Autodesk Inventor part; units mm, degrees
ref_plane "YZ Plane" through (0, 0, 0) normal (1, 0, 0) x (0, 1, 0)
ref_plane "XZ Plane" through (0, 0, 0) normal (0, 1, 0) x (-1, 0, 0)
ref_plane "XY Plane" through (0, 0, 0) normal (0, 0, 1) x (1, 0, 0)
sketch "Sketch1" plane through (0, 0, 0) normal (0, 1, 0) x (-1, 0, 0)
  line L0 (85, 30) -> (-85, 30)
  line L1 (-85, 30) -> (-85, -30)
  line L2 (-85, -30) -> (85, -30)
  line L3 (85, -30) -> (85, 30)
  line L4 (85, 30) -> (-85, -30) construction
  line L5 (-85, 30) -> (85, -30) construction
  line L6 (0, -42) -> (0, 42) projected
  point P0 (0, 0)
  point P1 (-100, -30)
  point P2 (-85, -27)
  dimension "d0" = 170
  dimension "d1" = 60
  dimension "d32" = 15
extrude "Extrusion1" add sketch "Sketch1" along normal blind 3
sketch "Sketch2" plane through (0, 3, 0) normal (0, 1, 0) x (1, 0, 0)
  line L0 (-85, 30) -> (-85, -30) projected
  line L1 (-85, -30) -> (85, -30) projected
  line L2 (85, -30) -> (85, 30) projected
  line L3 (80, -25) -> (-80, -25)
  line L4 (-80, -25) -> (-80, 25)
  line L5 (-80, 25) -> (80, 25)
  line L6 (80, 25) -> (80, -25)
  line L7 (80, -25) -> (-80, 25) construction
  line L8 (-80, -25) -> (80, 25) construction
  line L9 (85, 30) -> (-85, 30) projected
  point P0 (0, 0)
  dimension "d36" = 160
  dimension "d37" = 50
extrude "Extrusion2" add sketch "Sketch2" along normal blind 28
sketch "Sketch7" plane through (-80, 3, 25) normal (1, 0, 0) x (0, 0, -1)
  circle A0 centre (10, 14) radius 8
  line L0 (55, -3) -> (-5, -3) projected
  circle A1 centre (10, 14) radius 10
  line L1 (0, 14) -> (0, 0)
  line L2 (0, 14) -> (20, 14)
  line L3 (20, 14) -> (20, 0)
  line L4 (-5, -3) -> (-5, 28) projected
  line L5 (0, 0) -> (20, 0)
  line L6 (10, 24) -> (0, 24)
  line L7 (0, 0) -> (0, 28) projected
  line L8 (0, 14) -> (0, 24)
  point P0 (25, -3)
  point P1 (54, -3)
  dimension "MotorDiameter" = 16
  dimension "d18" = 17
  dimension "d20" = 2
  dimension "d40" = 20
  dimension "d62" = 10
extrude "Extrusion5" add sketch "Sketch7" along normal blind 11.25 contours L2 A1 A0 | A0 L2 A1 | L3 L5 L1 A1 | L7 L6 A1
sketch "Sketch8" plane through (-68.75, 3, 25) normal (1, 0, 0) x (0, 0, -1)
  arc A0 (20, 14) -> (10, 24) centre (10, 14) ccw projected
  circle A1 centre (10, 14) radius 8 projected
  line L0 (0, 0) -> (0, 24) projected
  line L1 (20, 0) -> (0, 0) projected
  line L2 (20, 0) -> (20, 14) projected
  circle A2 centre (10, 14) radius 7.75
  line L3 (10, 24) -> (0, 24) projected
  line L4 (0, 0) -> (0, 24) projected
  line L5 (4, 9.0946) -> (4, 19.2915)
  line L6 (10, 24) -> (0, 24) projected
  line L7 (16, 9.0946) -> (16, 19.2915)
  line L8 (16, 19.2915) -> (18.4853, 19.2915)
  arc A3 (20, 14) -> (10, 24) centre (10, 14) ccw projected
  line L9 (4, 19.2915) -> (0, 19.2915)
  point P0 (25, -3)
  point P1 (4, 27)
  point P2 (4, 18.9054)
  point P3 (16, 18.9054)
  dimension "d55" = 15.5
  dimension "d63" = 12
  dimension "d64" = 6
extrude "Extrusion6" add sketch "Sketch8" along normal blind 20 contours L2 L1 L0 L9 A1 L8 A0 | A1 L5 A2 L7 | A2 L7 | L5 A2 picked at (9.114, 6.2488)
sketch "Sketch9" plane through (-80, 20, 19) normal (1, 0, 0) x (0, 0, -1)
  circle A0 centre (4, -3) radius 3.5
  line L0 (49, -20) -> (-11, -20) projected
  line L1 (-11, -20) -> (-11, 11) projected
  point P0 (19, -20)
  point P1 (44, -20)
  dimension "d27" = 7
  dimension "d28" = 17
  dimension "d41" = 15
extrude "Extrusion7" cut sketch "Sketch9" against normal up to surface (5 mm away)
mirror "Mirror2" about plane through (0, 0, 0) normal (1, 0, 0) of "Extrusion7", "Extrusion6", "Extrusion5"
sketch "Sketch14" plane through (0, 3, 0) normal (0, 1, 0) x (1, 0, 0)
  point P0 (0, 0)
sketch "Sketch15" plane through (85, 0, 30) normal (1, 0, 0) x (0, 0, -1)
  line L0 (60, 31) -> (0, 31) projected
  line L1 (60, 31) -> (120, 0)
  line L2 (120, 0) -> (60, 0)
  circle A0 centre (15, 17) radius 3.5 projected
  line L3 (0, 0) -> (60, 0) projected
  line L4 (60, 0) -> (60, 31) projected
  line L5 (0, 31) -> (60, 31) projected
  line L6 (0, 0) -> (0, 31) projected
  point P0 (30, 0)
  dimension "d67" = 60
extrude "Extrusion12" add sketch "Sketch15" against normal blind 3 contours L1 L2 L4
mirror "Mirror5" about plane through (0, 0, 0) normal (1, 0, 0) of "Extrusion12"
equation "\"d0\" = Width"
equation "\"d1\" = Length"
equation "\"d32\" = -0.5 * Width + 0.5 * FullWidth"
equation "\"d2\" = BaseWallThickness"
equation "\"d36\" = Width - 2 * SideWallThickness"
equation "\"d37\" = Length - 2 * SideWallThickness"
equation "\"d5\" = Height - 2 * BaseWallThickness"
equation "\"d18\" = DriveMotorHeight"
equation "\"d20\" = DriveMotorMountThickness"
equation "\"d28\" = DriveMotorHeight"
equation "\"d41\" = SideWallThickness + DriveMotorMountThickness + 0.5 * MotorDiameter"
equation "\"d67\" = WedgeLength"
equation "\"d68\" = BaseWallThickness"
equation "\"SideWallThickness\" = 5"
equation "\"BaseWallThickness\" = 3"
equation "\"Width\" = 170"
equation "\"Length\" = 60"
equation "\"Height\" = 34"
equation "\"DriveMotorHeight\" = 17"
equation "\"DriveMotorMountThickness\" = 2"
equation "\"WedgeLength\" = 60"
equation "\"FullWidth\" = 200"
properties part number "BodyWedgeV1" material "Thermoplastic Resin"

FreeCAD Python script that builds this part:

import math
import FreeCAD as App
import Part
import Sketcher

V = App.Vector

doc = App.newDocument("Part")
body = doc.addObject("PartDesign::Body", "Body")

# Sketch on XZ plane
sketch1 = body.newObject("Sketcher::SketchObject", "Sketch")
sketch1.AttachmentSupport = (doc.getObject("XZ_Plane"), [""])
sketch1.MapMode = "FlatFace"
sketch1.addGeometry(Part.LineSegment(V(-85, -30, 0), V(-85, 30, 0)), False)
sketch1.addGeometry(Part.LineSegment(V(-85, 30, 0), V(85, 30, 0)), False)
sketch1.addGeometry(Part.LineSegment(V(85, 30, 0), V(85, -30, 0)), False)
sketch1.addGeometry(Part.LineSegment(V(85, -30, 0), V(-85, -30, 0)), False)
sketch1.addConstraint(Sketcher.Constraint("Coincident", 0, 2, 1, 1))
sketch1.addConstraint(Sketcher.Constraint("Coincident", 1, 2, 2, 1))
sketch1.addConstraint(Sketcher.Constraint("Coincident", 2, 2, 3, 1))
sketch1.addConstraint(Sketcher.Constraint("Coincident", 3, 2, 0, 1))
sketch1.addConstraint(Sketcher.Constraint("Vertical", 0))
sketch1.addConstraint(Sketcher.Constraint("Horizontal", 1))
sketch1.addConstraint(Sketcher.Constraint("Vertical", 2))
sketch1.addConstraint(Sketcher.Constraint("Horizontal", 3))
sketch1.addConstraint(Sketcher.Constraint("Symmetric", 0, 2, 2, 2, -1, 1))
sketch1.addConstraint(Sketcher.Constraint("DistanceX", 1, 1, 1, 2, 170.0))
sketch1.addConstraint(Sketcher.Constraint("DistanceY", 0, 1, 0, 2, 60.0))
pad1 = body.newObject("PartDesign::Pad", "Pad")
pad1.Profile = sketch1
pad1.Length = 3
pad1.Reversed = True

# Sketch on XZ plane
sketch2 = body.newObject("Sketcher::SketchObject", "Sketch001")
sketch2.AttachmentSupport = (doc.getObject("XZ_Plane"), [""])
sketch2.MapMode = "FlatFace"
sketch2.AttachmentOffset = App.Placement(V(0, 0, -3), App.Rotation())
sketch2.addGeometry(Part.LineSegment(V(85, -30, 0), V(-85, -30, 0)), False)
sketch2.addGeometry(Part.LineSegment(V(-85, -30, 0), V(-85, 30, 0)), False)
sketch2.addGeometry(Part.LineSegment(V(-85, 30, 0), V(85, 30, 0)), False)
sketch2.addGeometry(Part.LineSegment(V(85, 30, 0), V(85, -30, 0)), False)
sketch2.addGeometry(Part.LineSegment(V(80, -25, 0), V(80, 25, 0)), False)
sketch2.addGeometry(Part.LineSegment(V(80, 25, 0), V(-80, 25, 0)), False)
sketch2.addGeometry(Part.LineSegment(V(-80, 25, 0), V(-80, -25, 0)), False)
sketch2.addGeometry(Part.LineSegment(V(-80, -25, 0), V(80, -25, 0)), False)
sketch2.addConstraint(Sketcher.Constraint("Coincident", 0, 2, 1, 1))
sketch2.addConstraint(Sketcher.Constraint("Coincident", 1, 2, 2, 1))
sketch2.addConstraint(Sketcher.Constraint("Coincident", 2, 2, 3, 1))
sketch2.addConstraint(Sketcher.Constraint("Coincident", 3, 2, 0, 1))
sketch2.addConstraint(Sketcher.Constraint("Coincident", 4, 2, 5, 1))
sketch2.addConstraint(Sketcher.Constraint("Coincident", 5, 2, 6, 1))
sketch2.addConstraint(Sketcher.Constraint("Coincident", 6, 2, 7, 1))
sketch2.addConstraint(Sketcher.Constraint("Coincident", 7, 2, 4, 1))
sketch2.addConstraint(Sketcher.Constraint("Horizontal", 0))
sketch2.addConstraint(Sketcher.Constraint("Vertical", 1))
sketch2.addConstraint(Sketcher.Constraint("Horizontal", 2))
sketch2.addConstraint(Sketcher.Constraint("Vertical", 3))
sketch2.addConstraint(Sketcher.Constraint("Vertical", 4))
sketch2.addConstraint(Sketcher.Constraint("Horizontal", 5))
sketch2.addConstraint(Sketcher.Constraint("Vertical", 6))
sketch2.addConstraint(Sketcher.Constraint("Horizontal", 7))
sketch2.addConstraint(Sketcher.Constraint("Symmetric", 0, 2, 2, 2, -1, 1))
sketch2.addConstraint(Sketcher.Constraint("Symmetric", 4, 2, 6, 2, -1, 1))
sketch2.addConstraint(Sketcher.Constraint("DistanceX", 5, 2, 5, 1, 160.0))
sketch2.addConstraint(Sketcher.Constraint("DistanceY", 4, 1, 4, 2, 50.0))
sketch2.addConstraint(Sketcher.Constraint("DistanceX", 0, 2, 0, 1, 170.0))
sketch2.addConstraint(Sketcher.Constraint("DistanceY", 1, 1, 1, 2, 60.0))
pad2 = body.newObject("PartDesign::Pad", "Pad001")
pad2.Profile = sketch2
pad2.Length = 28
pad2.Reversed = True

# Sketch on YZ plane
sketch3 = body.newObject("Sketcher::SketchObject", "Sketch002")
sketch3.AttachmentSupport = (doc.getObject("YZ_Plane"), [""])
sketch3.MapMode = "FlatFace"
sketch3.AttachmentOffset = App.Placement(V(0, 0, -80), App.Rotation())
sketch3.addGeometry(Part.ArcOfCircle(Part.Circle(V(17, 15, 0), V(0, 0, 1), 10), math.radians(-90), math.radians(0)), False)
sketch3.addGeometry(Part.LineSegment(V(27, 15, 0), V(27, 25, 0)), False)
sketch3.addGeometry(Part.LineSegment(V(27, 25, 0), V(3, 25, 0)), False)
sketch3.addGeometry(Part.LineSegment(V(3, 25, 0), V(3, 5, 0)), False)
sketch3.addGeometry(Part.LineSegment(V(3, 5, 0), V(17, 5, 0)), False)
sketch3.addGeometry(Part.Circle(V(17, 15, 0), V(0, 0, 1), 8), False)
sketch3.addConstraint(Sketcher.Constraint("Tangent", 0, 2, 1, 1))
sketch3.addConstraint(Sketcher.Constraint("Coincident", 1, 2, 2, 1))
sketch3.addConstraint(Sketcher.Constraint("Coincident", 2, 2, 3, 1))
sketch3.addConstraint(Sketcher.Constraint("Coincident", 3, 2, 4, 1))
sketch3.addConstraint(Sketcher.Constraint("Tangent", 4, 2, 0, 1))
sketch3.addConstraint(Sketcher.Constraint("Vertical", 1))
sketch3.addConstraint(Sketcher.Constraint("Horizontal", 2))
sketch3.addConstraint(Sketcher.Constraint("Vertical", 3))
sketch3.addConstraint(Sketcher.Constraint("Horizontal", 4))
sketch3.addConstraint(Sketcher.Constraint("Coincident", 5, 3, 0, 3))
sketch3.addConstraint(Sketcher.Constraint("Diameter", 5, 16.0))
sketch3.addConstraint(Sketcher.Constraint("Radius", 0, 10.0))
sketch3.addConstraint(Sketcher.Constraint("DistanceY", 1, 1, 1, 2, 10.0))
sketch3.addConstraint(Sketcher.Constraint("DistanceX", -1, 1, 0, 3, 17.0))
sketch3.addConstraint(Sketcher.Constraint("DistanceX", 2, 2, 2, 1, 24.0))
sketch3.addConstraint(Sketcher.Constraint("DistanceY", -1, 1, 0, 3, 15.0))
pad3 = body.newObject("PartDesign::Pad", "Pad002")
pad3.Profile = sketch3
pad3.Length = 11.25

# Sketch on YZ plane
sketch4 = body.newObject("Sketcher::SketchObject", "Sketch003")
sketch4.AttachmentSupport = (doc.getObject("YZ_Plane"), [""])
sketch4.MapMode = "FlatFace"
sketch4.AttachmentOffset = App.Placement(V(0, 0, -68.75), App.Rotation())
sketch4.addGeometry(Part.LineSegment(V(3, 5, 0), V(17, 5, 0)), False)
sketch4.addGeometry(Part.ArcOfCircle(Part.Circle(V(17, 15, 0), V(0, 0, 1), 10), math.radians(-90), math.radians(-58)), False)
sketch4.addGeometry(Part.LineSegment(V(22.3, 6.5, 0), V(22.3, 9, 0)), False)
sketch4.addGeometry(Part.LineSegment(V(22.3, 9, 0), V(12.1, 9, 0)), False)
sketch4.addGeometry(Part.ArcOfCircle(Part.Circle(V(17, 15, 0), V(0, 0, 1), 7.8), math.radians(129), math.radians(231)), False)
sketch4.addGeometry(Part.LineSegment(V(12.1, 21, 0), V(22.3, 21, 0)), False)
sketch4.addGeometry(Part.LineSegment(V(22.3, 21, 0), V(22.3, 25, 0)), False)
sketch4.addGeometry(Part.LineSegment(V(22.3, 25, 0), V(3, 25, 0)), False)
sketch4.addGeometry(Part.LineSegment(V(3, 25, 0), V(3, 5, 0)), False)
sketch4.addConstraint(Sketcher.Constraint("Tangent", 0, 2, 1, 1))
sketch4.addConstraint(Sketcher.Constraint("Coincident", 1, 2, 2, 1))
sketch4.addConstraint(Sketcher.Constraint("Coincident", 2, 2, 3, 1))
sketch4.addConstraint(Sketcher.Constraint("Coincident", 3, 2, 4, 2))
sketch4.addConstraint(Sketcher.Constraint("Coincident", 4, 1, 5, 1))
sketch4.addConstraint(Sketcher.Constraint("Coincident", 5, 2, 6, 1))
sketch4.addConstraint(Sketcher.Constraint("Coincident", 6, 2, 7, 1))
sketch4.addConstraint(Sketcher.Constraint("Coincident", 7, 2, 8, 1))
sketch4.addConstraint(Sketcher.Constraint("Coincident", 8, 2, 0, 1))
sketch4.addConstraint(Sketcher.Constraint("Horizontal", 0))
sketch4.addConstraint(Sketcher.Constraint("Vertical", 2))
sketch4.addConstraint(Sketcher.Constraint("Horizontal", 3))
sketch4.addConstraint(Sketcher.Constraint("Horizontal", 5))
sketch4.addConstraint(Sketcher.Constraint("Vertical", 6))
sketch4.addConstraint(Sketcher.Constraint("Horizontal", 7))
sketch4.addConstraint(Sketcher.Constraint("Vertical", 8))
sketch4.addConstraint(Sketcher.Constraint("Coincident", 4, 3, 1, 3))
sketch4.addConstraint(Sketcher.Constraint("Vertical", 3, 2, 4, 1))
sketch4.addConstraint(Sketcher.Constraint("Vertical", 2, 2, 5, 2))
sketch4.addConstraint(Sketcher.Constraint("Radius", 4, 7.75))
sketch4.addConstraint(Sketcher.Constraint("Radius", 1, 10.0))
sketch4.addConstraint(Sketcher.Constraint("DistanceY", 2, 2, 1, 3, 6.0))
sketch4.addConstraint(Sketcher.Constraint("DistanceX", 0, 1, 0, 2, 14.0))
sketch4.addConstraint(Sketcher.Constraint("DistanceY", 6, 1, 6, 2, 4.0))
sketch4.addConstraint(Sketcher.Constraint("DistanceX", -1, 1, 1, 3, 17.0))
sketch4.addConstraint(Sketcher.Constraint("DistanceY", -1, 1, 1, 3, 15.0))
sketch4.addConstraint(Sketcher.Constraint("DistanceX", 3, 2, 3, 1, 10.197))
pad4 = body.newObject("PartDesign::Pad", "Pad003")
pad4.Profile = sketch4
pad4.Length = 20

# Sketch on YZ plane
sketch5 = body.newObject("Sketcher::SketchObject", "Sketch004")
sketch5.AttachmentSupport = (doc.getObject("YZ_Plane"), [""])
sketch5.MapMode = "FlatFace"
sketch5.AttachmentOffset = App.Placement(V(0, 0, -80), App.Rotation())
sketch5.addGeometry(Part.Circle(V(17, 15, 0), V(0, 0, 1), 3.5), False)
sketch5.addConstraint(Sketcher.Constraint("Diameter", 0, 7.0))
sketch5.addConstraint(Sketcher.Constraint("DistanceX", -1, 1, 0, 3, 17.0))
sketch5.addConstraint(Sketcher.Constraint("DistanceY", -1, 1, 0, 3, 15.0))
pocket1 = body.newObject("PartDesign::Pocket", "Pocket")
pocket1.Profile = sketch5
pocket1.Length = 5
doc.recompute()

mirrored = body.newObject("PartDesign::Mirrored", "Mirrored")
mirrored.Originals = [pocket1, pad4, pad3]
mirrored.MirrorPlane = (doc.getObject("YZ_Plane"), [""])
body.Tip = mirrored

# Sketch on YZ plane
sketch6 = body.newObject("Sketcher::SketchObject", "Sketch005")
sketch6.AttachmentSupport = (doc.getObject("YZ_Plane"), [""])
sketch6.MapMode = "FlatFace"
sketch6.AttachmentOffset = App.Placement(V(0, 0, 85), App.Rotation())
sketch6.addGeometry(Part.LineSegment(V(0, -90, 0), V(31, -30, 0)), False)
sketch6.addGeometry(Part.LineSegment(V(31, -30, 0), V(0, -30, 0)), False)
sketch6.addGeometry(Part.LineSegment(V(0, -30, 0), V(0, -90, 0)), False)
sketch6.addConstraint(Sketcher.Constraint("Coincident", 0, 2, 1, 1))
sketch6.addConstraint(Sketcher.Constraint("Coincident", 1, 2, 2, 1))
sketch6.addConstraint(Sketcher.Constraint("Coincident", 2, 2, 0, 1))
sketch6.addConstraint(Sketcher.Constraint("Horizontal", 1))
sketch6.addConstraint(Sketcher.Constraint("Vertical", 2))
sketch6.addConstraint(Sketcher.Constraint("PointOnObject", 1, 2, -2))
sketch6.addConstraint(Sketcher.Constraint("DistanceY", 2, 2, 2, 1, 60.0))
sketch6.addConstraint(Sketcher.Constraint("DistanceX", 1, 2, 1, 1, 31.0))
sketch6.addConstraint(Sketcher.Constraint("DistanceY", 0, 2, -1, 1, 30.0))
pad5 = body.newObject("PartDesign::Pad", "Pad004")
pad5.Profile = sketch6
pad5.Length = 3
pad5.Reversed = True
doc.recompute()

mirrored2 = body.newObject("PartDesign::Mirrored", "Mirrored001")
mirrored2.Originals = [pad5]
mirrored2.MirrorPlane = (doc.getObject("YZ_Plane"), [""])
body.Tip = mirrored2

doc.recompute()
